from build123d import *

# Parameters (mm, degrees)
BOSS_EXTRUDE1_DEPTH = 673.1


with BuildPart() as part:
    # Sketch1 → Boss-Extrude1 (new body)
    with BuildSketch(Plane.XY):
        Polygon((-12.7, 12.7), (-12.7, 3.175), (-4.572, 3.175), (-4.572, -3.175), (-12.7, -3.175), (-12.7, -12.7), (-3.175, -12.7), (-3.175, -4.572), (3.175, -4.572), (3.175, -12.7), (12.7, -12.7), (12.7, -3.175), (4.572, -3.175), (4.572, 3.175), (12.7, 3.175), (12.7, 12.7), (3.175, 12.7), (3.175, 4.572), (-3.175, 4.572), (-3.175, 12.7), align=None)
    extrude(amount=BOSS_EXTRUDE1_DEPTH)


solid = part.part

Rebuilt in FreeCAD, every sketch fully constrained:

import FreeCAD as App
import Part
import Sketcher
Q = App.Units.Quantity

doc = App.newDocument("Part")
body = doc.addObject("PartDesign::Body", "Body")

# Sketch on XY plane
sketch1 = doc.addObject("Sketcher::SketchObject", "Sketch")
body.addObject(sketch1)
sketch1.AttachmentSupport = (doc.XY_Plane, [""])
sketch1.MapMode = "FlatFace"
sketch1.addGeometry(Part.LineSegment(App.Vector(-13, 13, 0), App.Vector(-13, 3, 0)), False)
sketch1.addGeometry(Part.LineSegment(App.Vector(-13, 3, 0), App.Vector(-5, 3, 0)), False)
sketch1.addGeometry(Part.LineSegment(App.Vector(-5, 3, 0), App.Vector(-5, -3, 0)), False)
sketch1.addGeometry(Part.LineSegment(App.Vector(-5, -3, 0), App.Vector(-13, -3, 0)), False)
sketch1.addGeometry(Part.LineSegment(App.Vector(-13, -3, 0), App.Vector(-13, -13, 0)), False)
sketch1.addGeometry(Part.LineSegment(App.Vector(-13, -13, 0), App.Vector(-3, -13, 0)), False)
sketch1.addGeometry(Part.LineSegment(App.Vector(-3, -13, 0), App.Vector(-3, -5, 0)), False)
sketch1.addGeometry(Part.LineSegment(App.Vector(-3, -5, 0), App.Vector(3, -5, 0)), False)
sketch1.addGeometry(Part.LineSegment(App.Vector(3, -5, 0), App.Vector(3, -13, 0)), False)
sketch1.addGeometry(Part.LineSegment(App.Vector(3, -13, 0), App.Vector(13, -13, 0)), False)
sketch1.addGeometry(Part.LineSegment(App.Vector(13, -13, 0), App.Vector(13, -3, 0)), False)
sketch1.addGeometry(Part.LineSegment(App.Vector(13, -3, 0), App.Vector(5, -3, 0)), False)
sketch1.addGeometry(Part.LineSegment(App.Vector(5, -3, 0), App.Vector(5, 3, 0)), False)
sketch1.addGeometry(Part.LineSegment(App.Vector(5, 3, 0), App.Vector(13, 3, 0)), False)
sketch1.addGeometry(Part.LineSegment(App.Vector(13, 3, 0), App.Vector(13, 13, 0)), False)
sketch1.addGeometry(Part.LineSegment(App.Vector(13, 13, 0), App.Vector(3, 13, 0)), False)
sketch1.addGeometry(Part.LineSegment(App.Vector(3, 13, 0), App.Vector(3, 5, 0)), False)
sketch1.addGeometry(Part.LineSegment(App.Vector(3, 5, 0), App.Vector(-3, 5, 0)), False)
sketch1.addGeometry(Part.LineSegment(App.Vector(-3, 5, 0), App.Vector(-3, 13, 0)), False)
sketch1.addGeometry(Part.LineSegment(App.Vector(-3, 13, 0), App.Vector(-13, 13, 0)), False)
sketch1.addConstraint(Sketcher.Constraint("Coincident", 0, 2, 1, 1))
sketch1.addConstraint(Sketcher.Constraint("Coincident", 1, 2, 2, 1))
sketch1.addConstraint(Sketcher.Constraint("Coincident", 2, 2, 3, 1))
sketch1.addConstraint(Sketcher.Constraint("Coincident", 3, 2, 4, 1))
sketch1.addConstraint(Sketcher.Constraint("Coincident", 4, 2, 5, 1))
sketch1.addConstraint(Sketcher.Constraint("Coincident", 5, 2, 6, 1))
sketch1.addConstraint(Sketcher.Constraint("Coincident", 6, 2, 7, 1))
sketch1.addConstraint(Sketcher.Constraint("Coincident", 7, 2, 8, 1))
sketch1.addConstraint(Sketcher.Constraint("Coincident", 8, 2, 9, 1))
sketch1.addConstraint(Sketcher.Constraint("Coincident", 9, 2, 10, 1))
sketch1.addConstraint(Sketcher.Constraint("Coincident", 10, 2, 11, 1))
sketch1.addConstraint(Sketcher.Constraint("Coincident", 11, 2, 12, 1))
sketch1.addConstraint(Sketcher.Constraint("Coincident", 12, 2, 13, 1))
sketch1.addConstraint(Sketcher.Constraint("Coincident", 13, 2, 14, 1))
sketch1.addConstraint(Sketcher.Constraint("Coincident", 14, 2, 15, 1))
sketch1.addConstraint(Sketcher.Constraint("Coincident", 15, 2, 16, 1))
sketch1.addConstraint(Sketcher.Constraint("Coincident", 16, 2, 17, 1))
sketch1.addConstraint(Sketcher.Constraint("Coincident", 17, 2, 18, 1))
sketch1.addConstraint(Sketcher.Constraint("Coincident", 18, 2, 19, 1))
sketch1.addConstraint(Sketcher.Constraint("Coincident", 19, 2, 0, 1))
sketch1.addConstraint(Sketcher.Constraint("Vertical", 0))
sketch1.addConstraint(Sketcher.Constraint("Horizontal", 1))
sketch1.addConstraint(Sketcher.Constraint("Vertical", 2))
sketch1.addConstraint(Sketcher.Constraint("Horizontal", 3))
sketch1.addConstraint(Sketcher.Constraint("Vertical", 4))
sketch1.addConstraint(Sketcher.Constraint("Horizontal", 5))
sketch1.addConstraint(Sketcher.Constraint("Vertical", 6))
sketch1.addConstraint(Sketcher.Constraint("Horizontal", 7))
sketch1.addConstraint(Sketcher.Constraint("Vertical", 8))
sketch1.addConstraint(Sketcher.Constraint("Horizontal", 9))
sketch1.addConstraint(Sketcher.Constraint("Vertical", 10))
sketch1.addConstraint(Sketcher.Constraint("Horizontal", 11))
sketch1.addConstraint(Sketcher.Constraint("Vertical", 12))
sketch1.addConstraint(Sketcher.Constraint("Horizontal", 13))
sketch1.addConstraint(Sketcher.Constraint("Vertical", 14))
sketch1.addConstraint(Sketcher.Constraint("Horizontal", 15))
sketch1.addConstraint(Sketcher.Constraint("Vertical", 16))
sketch1.addConstraint(Sketcher.Constraint("Horizontal", 17))
sketch1.addConstraint(Sketcher.Constraint("Vertical", 18))
sketch1.addConstraint(Sketcher.Constraint("Horizontal", 19))
sketch1.addConstraint(Sketcher.Constraint("Symmetric", 0, 2, 10, 2, -1, 1))
sketch1.addConstraint(Sketcher.Constraint("Symmetric", 2, 2, 12, 2, -1, 1))
sketch1.addConstraint(Sketcher.Constraint("Symmetric", 4, 2, 14, 2, -1, 1))
sketch1.addConstraint(Sketcher.Constraint("Symmetric", 6, 2, 16, 2, -1, 1))
sketch1.addConstraint(Sketcher.Constraint("Symmetric", 8, 2, 18, 2, -1, 1))
sketch1.addConstraint(Sketcher.Constraint("Symmetric", 5, 2, 8, 2, -2))
sketch1.addConstraint(Sketcher.Constraint("Symmetric", 3, 2, 10, 2, -2))
sketch1.addConstraint(Sketcher.Constraint("Equal", 19, 0))
sketch1.addConstraint(Sketcher.Constraint("Equal", 17, 2))
sketch1.addConstraint(Sketcher.Constraint("Equal", 13, 6))
sketch1.addConstraint(Sketcher.Constraint("DistanceX", 1, 1, 1, 2, Q("0.32 in")))
sketch1.addConstraint(Sketcher.Constraint("DistanceX", 7, 1, 7, 2, Q("0.25 in")))
sketch1.addConstraint(Sketcher.Constraint("DistanceX", 0, 2, -1, 1, Q("0.5 in")))
pad1 = doc.addObject("PartDesign::Pad", "Pad")
body.addObject(pad1)
pad1.Profile = sketch1
pad1.Length = Q("26.5 in")

doc.recompute()
